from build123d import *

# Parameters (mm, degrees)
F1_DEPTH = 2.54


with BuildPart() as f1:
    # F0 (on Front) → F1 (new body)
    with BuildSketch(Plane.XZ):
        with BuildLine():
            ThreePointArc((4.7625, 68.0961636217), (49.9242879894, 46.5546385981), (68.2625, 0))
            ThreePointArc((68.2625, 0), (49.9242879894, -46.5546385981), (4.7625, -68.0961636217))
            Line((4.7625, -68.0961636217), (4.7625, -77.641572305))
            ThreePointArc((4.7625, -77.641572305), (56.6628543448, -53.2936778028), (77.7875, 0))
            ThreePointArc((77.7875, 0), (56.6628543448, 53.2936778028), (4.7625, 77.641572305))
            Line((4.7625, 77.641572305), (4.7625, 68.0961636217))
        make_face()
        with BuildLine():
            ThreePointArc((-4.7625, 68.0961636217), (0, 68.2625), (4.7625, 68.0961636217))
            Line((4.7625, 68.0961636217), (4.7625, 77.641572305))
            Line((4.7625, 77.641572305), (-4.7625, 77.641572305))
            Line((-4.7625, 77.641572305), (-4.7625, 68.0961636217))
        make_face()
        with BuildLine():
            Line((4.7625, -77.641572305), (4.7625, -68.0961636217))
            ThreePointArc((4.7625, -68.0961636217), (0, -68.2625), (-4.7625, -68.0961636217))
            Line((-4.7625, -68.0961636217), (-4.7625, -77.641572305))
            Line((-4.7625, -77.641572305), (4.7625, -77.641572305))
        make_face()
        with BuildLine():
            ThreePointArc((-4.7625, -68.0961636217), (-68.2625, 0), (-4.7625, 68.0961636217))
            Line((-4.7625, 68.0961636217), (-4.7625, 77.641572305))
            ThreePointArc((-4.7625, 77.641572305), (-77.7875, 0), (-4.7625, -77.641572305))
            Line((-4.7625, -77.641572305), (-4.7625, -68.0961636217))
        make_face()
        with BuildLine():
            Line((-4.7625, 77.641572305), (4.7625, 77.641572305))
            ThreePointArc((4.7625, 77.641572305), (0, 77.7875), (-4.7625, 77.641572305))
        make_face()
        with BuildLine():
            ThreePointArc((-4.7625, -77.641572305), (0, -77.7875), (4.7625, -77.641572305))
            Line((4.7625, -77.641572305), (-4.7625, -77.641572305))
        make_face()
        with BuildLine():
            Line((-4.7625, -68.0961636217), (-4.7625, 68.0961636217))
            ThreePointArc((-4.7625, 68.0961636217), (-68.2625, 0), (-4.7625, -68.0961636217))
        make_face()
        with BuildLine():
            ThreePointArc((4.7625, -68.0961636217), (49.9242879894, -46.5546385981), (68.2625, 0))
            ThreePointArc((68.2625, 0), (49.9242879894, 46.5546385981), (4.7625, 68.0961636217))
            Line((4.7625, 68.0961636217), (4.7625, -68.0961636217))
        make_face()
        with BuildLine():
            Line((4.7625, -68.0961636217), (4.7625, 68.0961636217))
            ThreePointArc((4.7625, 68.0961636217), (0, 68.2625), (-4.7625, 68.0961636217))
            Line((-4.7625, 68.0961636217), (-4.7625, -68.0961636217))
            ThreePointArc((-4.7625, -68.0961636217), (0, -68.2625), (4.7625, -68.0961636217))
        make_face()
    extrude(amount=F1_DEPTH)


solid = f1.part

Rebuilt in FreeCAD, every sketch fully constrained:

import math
import FreeCAD as App
import Part
import Sketcher
from FreeCAD import Vector
Q = App.Units.Quantity

doc = App.newDocument("Part")
body = doc.addObject("PartDesign::Body", "Body")

sketch1 = doc.addObject("Sketcher::SketchObject", "Sketch")
body.addObject(sketch1)
sketch1.AttachmentSupport = (doc.XZ_Plane, [""])
sketch1.MapMode = "FlatFace"
sketch1.addGeometry(Part.ArcOfCircle(Part.Circle(Vector(0, 0, 0), Vector(0, 0, 1), 78), math.radians(-86), math.radians(86)), False)
sketch1.addGeometry(Part.ArcOfCircle(Part.Circle(Vector(0, 0, 0), Vector(0, 0, 1), 78), math.radians(86.49), math.radians(93.51)), False)
sketch1.addGeometry(Part.ArcOfCircle(Part.Circle(Vector(0, 0, 0), Vector(0, 0, 1), 78), math.radians(94), math.radians(266)), False)
sketch1.addGeometry(Part.ArcOfCircle(Part.Circle(Vector(0, 0, 0), Vector(0, 0, 1), 78), math.radians(-93.51), math.radians(-86.49)), False)
sketch1.addConstraint(Sketcher.Constraint("Tangent", 0, 2, 1, 1))
sketch1.addConstraint(Sketcher.Constraint("Tangent", 1, 2, 2, 1))
sketch1.addConstraint(Sketcher.Constraint("Tangent", 2, 2, 3, 1))
sketch1.addConstraint(Sketcher.Constraint("Coincident", 3, 2, 0, 1))
sketch1.addConstraint(Sketcher.Constraint("Coincident", 0, 3, -1, 1))
sketch1.addConstraint(Sketcher.Constraint("Coincident", 2, 3, -1, 1))
sketch1.addConstraint(Sketcher.Constraint("Horizontal", 0, 2, 1, 2))
sketch1.addConstraint(Sketcher.Constraint("Horizontal", 2, 2, 3, 2))
sketch1.addConstraint(Sketcher.Constraint("Vertical", 1, 2, 2, 2))
sketch1.addConstraint(Sketcher.Constraint("Radius", 0, Q("3.0625 in")))
sketch1.addConstraint(Sketcher.Constraint("DistanceX", -1, 1, 0, 2, Q("0.1875 in")))
pad1 = doc.addObject("PartDesign::Pad", "Pad")
body.addObject(pad1)
pad1.Profile = sketch1
pad1.Length = Q("0.1 in")

doc.recompute()
